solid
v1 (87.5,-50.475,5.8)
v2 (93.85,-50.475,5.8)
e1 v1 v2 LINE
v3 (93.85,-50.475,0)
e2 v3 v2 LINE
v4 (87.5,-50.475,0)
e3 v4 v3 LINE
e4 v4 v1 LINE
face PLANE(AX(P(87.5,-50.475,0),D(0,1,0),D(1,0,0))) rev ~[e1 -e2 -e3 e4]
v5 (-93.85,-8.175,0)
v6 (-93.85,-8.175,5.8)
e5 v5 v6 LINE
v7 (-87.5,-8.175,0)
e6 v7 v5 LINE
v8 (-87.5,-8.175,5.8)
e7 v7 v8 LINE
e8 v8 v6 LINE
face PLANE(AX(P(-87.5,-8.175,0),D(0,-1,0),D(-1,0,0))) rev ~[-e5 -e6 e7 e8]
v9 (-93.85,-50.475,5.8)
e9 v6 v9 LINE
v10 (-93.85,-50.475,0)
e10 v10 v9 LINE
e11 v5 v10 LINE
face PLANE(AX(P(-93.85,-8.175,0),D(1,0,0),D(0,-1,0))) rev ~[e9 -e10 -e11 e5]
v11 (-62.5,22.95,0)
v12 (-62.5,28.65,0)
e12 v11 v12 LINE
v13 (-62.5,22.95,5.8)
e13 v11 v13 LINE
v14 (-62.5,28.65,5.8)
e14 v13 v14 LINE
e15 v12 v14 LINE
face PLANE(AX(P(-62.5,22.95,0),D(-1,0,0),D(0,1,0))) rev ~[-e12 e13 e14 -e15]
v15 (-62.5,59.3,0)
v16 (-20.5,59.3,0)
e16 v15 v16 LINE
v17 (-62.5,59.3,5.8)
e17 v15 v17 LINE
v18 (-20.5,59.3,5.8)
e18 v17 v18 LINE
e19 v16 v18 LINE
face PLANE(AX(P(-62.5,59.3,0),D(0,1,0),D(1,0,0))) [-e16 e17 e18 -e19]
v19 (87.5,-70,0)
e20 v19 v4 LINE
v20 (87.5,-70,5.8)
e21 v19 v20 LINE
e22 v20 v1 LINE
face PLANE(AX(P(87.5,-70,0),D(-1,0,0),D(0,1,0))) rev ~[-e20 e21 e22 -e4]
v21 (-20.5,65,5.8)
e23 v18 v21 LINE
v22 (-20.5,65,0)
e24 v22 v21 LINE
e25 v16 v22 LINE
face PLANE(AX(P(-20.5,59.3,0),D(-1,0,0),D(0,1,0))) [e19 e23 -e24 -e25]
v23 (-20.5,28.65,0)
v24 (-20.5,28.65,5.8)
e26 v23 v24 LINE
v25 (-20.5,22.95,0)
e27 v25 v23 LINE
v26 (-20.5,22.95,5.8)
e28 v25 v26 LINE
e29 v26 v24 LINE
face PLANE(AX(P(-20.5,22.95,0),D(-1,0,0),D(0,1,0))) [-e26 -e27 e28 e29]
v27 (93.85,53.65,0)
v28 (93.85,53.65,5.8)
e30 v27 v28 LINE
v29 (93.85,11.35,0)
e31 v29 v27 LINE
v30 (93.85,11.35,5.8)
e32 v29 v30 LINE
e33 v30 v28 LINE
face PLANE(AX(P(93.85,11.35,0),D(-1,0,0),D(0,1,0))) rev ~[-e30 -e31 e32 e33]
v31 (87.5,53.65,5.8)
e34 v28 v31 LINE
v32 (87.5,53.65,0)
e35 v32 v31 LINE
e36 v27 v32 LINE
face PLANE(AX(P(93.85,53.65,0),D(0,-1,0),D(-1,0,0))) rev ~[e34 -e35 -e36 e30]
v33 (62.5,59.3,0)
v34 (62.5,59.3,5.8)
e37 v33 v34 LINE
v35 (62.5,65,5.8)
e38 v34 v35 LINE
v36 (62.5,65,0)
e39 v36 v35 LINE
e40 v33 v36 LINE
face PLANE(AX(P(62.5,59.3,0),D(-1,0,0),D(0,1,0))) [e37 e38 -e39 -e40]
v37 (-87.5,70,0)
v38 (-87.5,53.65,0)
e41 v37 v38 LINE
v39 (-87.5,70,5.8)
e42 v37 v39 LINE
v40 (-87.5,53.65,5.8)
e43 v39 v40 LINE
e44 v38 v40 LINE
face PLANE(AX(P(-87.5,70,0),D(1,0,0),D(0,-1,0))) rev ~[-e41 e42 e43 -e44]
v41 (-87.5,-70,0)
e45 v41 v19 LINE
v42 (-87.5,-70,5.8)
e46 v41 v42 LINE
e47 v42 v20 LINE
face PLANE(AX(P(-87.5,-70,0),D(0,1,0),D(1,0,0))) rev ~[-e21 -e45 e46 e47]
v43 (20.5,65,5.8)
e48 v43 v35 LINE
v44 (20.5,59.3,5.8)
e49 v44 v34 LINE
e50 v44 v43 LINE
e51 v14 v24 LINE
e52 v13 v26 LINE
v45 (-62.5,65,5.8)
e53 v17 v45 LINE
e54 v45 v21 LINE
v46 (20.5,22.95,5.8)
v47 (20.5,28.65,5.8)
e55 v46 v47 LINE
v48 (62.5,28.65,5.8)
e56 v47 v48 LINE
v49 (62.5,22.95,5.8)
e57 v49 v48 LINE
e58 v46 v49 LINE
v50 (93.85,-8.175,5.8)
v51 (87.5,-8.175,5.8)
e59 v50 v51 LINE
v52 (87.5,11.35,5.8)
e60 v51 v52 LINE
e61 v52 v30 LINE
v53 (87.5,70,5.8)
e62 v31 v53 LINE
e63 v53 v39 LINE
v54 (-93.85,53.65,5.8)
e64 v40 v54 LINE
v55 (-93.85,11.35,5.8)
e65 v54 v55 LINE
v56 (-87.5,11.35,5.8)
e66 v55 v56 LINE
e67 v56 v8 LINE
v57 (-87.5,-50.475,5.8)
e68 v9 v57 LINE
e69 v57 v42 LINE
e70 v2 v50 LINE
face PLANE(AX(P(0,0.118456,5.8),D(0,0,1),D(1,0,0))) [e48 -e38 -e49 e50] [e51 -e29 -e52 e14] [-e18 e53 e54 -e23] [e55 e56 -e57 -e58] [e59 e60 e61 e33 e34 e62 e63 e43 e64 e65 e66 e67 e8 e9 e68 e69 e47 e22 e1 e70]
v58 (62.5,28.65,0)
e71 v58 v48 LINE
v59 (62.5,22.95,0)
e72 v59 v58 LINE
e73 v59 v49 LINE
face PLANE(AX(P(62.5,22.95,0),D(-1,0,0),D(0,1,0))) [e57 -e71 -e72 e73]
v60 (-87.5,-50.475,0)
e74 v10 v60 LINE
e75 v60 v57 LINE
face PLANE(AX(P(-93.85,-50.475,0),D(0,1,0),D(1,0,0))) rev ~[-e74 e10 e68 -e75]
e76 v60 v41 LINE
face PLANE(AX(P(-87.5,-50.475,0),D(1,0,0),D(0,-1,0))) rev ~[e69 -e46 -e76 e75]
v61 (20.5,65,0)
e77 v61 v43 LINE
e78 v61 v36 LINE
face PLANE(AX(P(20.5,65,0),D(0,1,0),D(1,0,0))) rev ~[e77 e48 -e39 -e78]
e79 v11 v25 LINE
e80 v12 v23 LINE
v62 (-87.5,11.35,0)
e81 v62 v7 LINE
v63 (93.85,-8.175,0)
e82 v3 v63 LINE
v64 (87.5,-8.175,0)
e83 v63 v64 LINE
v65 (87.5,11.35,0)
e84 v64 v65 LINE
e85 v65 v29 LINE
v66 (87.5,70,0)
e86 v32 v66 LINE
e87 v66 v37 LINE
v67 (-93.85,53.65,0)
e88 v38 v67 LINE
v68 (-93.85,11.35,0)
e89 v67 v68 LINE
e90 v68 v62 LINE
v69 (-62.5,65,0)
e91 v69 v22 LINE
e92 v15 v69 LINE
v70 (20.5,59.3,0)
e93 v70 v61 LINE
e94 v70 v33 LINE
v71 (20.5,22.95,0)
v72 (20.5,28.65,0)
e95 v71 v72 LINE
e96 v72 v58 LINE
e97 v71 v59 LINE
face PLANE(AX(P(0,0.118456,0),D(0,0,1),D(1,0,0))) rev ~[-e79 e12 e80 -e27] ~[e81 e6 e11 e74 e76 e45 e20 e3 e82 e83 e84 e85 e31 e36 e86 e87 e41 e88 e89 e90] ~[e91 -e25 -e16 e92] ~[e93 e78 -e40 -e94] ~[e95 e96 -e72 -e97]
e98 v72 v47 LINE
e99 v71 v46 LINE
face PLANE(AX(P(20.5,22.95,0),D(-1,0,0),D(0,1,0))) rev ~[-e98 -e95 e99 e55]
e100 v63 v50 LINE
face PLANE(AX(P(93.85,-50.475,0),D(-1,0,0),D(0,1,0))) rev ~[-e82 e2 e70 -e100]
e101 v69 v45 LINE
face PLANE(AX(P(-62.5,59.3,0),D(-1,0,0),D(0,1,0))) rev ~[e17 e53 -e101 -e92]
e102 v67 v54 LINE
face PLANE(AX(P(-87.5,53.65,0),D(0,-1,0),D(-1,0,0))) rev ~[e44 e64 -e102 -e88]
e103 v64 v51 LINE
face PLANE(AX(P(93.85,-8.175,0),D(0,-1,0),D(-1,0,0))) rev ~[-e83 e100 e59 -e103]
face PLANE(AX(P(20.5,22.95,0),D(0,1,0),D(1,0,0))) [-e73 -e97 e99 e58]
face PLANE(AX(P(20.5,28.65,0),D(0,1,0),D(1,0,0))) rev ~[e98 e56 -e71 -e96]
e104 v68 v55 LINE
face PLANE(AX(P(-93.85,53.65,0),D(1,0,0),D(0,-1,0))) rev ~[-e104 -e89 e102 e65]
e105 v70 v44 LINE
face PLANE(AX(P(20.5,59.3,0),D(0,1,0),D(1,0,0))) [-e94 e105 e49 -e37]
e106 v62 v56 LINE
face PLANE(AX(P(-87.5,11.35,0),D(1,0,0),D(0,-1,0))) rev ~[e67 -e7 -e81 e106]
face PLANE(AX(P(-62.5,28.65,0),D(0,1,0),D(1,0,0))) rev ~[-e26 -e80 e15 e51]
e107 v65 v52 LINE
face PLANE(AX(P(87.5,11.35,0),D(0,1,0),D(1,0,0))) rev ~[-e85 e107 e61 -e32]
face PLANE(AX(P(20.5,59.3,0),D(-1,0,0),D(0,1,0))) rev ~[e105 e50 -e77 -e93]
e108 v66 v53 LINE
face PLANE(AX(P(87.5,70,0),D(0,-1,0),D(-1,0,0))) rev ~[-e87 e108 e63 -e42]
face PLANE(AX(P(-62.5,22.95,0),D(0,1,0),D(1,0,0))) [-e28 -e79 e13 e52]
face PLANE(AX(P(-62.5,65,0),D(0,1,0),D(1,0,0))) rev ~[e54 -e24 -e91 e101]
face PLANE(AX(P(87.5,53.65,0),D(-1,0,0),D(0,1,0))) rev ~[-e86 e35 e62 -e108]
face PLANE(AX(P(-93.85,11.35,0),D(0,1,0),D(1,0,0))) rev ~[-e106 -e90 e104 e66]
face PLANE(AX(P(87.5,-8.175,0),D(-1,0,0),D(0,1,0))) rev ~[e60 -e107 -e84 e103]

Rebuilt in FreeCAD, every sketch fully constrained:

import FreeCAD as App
import Part
import Sketcher
Q = App.Units.Quantity

doc = App.newDocument("Part")
params = doc.addObject("Spreadsheet::Sheet", "Params")
for row, (alias, value) in enumerate([
    ("sketch1_width", "175 mm"),
    ("sketch1_width2", "42 mm"),
    ("sketch1_height", "42.3 mm"),
    ("sketch1_height2", "5.7 mm"),
    ("sketch1_width3", "6.35 mm"),
    ("pad1_length", "5.8 mm"),
], start=1):
    params.set(f"A{row}", alias)
    params.set(f"B{row}", "=" + value)
    params.setAlias(f"B{row}", alias)

body = doc.addObject("PartDesign::Body", "Body")

sketch1 = body.newObject("Sketcher::SketchObject", "Sketch")
sketch1.AttachmentSupport = (doc.getObject("XY_Plane"), [""])
sketch1.MapMode = "FlatFace"
sketch1.addGeometry([
    Part.LineSegment(App.Vector(88, 54, 0), App.Vector(88, 70, 0)),
    Part.LineSegment(App.Vector(88, 70, 0), App.Vector(-88, 70, 0)),
    Part.LineSegment(App.Vector(-88, 70, 0), App.Vector(-88, 54, 0)),
    Part.LineSegment(App.Vector(-88, 54, 0), App.Vector(-94, 54, 0)),
    Part.LineSegment(App.Vector(-94, 54, 0), App.Vector(-94, 11, 0)),
    Part.LineSegment(App.Vector(-94, 11, 0), App.Vector(-88, 11, 0)),
    Part.LineSegment(App.Vector(-88, 11, 0), App.Vector(-88, -8, 0)),
    Part.LineSegment(App.Vector(-88, -8, 0), App.Vector(-94, -8, 0)),
    Part.LineSegment(App.Vector(-94, -8, 0), App.Vector(-94, -50, 0)),
    Part.LineSegment(App.Vector(-94, -50, 0), App.Vector(-88, -50, 0)),
    Part.LineSegment(App.Vector(-88, -50, 0), App.Vector(-88, -70, 0)),
    Part.LineSegment(App.Vector(-88, -70, 0), App.Vector(88, -70, 0)),
    Part.LineSegment(App.Vector(88, -70, 0), App.Vector(88, -50, 0)),
    Part.LineSegment(App.Vector(88, -50, 0), App.Vector(94, -50, 0)),
    Part.LineSegment(App.Vector(94, -50, 0), App.Vector(94, -8, 0)),
    Part.LineSegment(App.Vector(94, -8, 0), App.Vector(88, -8, 0)),
    Part.LineSegment(App.Vector(88, -8, 0), App.Vector(88, 11, 0)),
    Part.LineSegment(App.Vector(88, 11, 0), App.Vector(94, 11, 0)),
    Part.LineSegment(App.Vector(94, 11, 0), App.Vector(94, 54, 0)),
    Part.LineSegment(App.Vector(94, 54, 0), App.Vector(88, 54, 0)),
    Part.LineSegment(App.Vector(-20, 23, 0), App.Vector(-62, 23, 0)),
    Part.LineSegment(App.Vector(-62, 23, 0), App.Vector(-62, 29, 0)),
    Part.LineSegment(App.Vector(-62, 29, 0), App.Vector(-20, 29, 0)),
    Part.LineSegment(App.Vector(-20, 29, 0), App.Vector(-20, 23, 0)),
    Part.LineSegment(App.Vector(62, 23, 0), App.Vector(20, 23, 0)),
    Part.LineSegment(App.Vector(20, 23, 0), App.Vector(20, 29, 0)),
    Part.LineSegment(App.Vector(20, 29, 0), App.Vector(62, 29, 0)),
    Part.LineSegment(App.Vector(62, 29, 0), App.Vector(62, 23, 0)),
    Part.LineSegment(App.Vector(-20, 59, 0), App.Vector(-62, 59, 0)),
    Part.LineSegment(App.Vector(-62, 59, 0), App.Vector(-62, 65, 0)),
    Part.LineSegment(App.Vector(-62, 65, 0), App.Vector(-20, 65, 0)),
    Part.LineSegment(App.Vector(-20, 65, 0), App.Vector(-20, 59, 0)),
    Part.LineSegment(App.Vector(62, 59, 0), App.Vector(20, 59, 0)),
    Part.LineSegment(App.Vector(20, 59, 0), App.Vector(20, 65, 0)),
    Part.LineSegment(App.Vector(20, 65, 0), App.Vector(62, 65, 0)),
    Part.LineSegment(App.Vector(62, 65, 0), App.Vector(62, 59, 0)),
], False)
sketch1.addConstraint([
    Sketcher.Constraint("Coincident", 0, 2, 1, 1),
    Sketcher.Constraint("Coincident", 1, 2, 2, 1),
    Sketcher.Constraint("Coincident", 2, 2, 3, 1),
    Sketcher.Constraint("Coincident", 3, 2, 4, 1),
    Sketcher.Constraint("Coincident", 4, 2, 5, 1),
    Sketcher.Constraint("Coincident", 5, 2, 6, 1),
    Sketcher.Constraint("Coincident", 6, 2, 7, 1),
    Sketcher.Constraint("Coincident", 7, 2, 8, 1),
    Sketcher.Constraint("Coincident", 8, 2, 9, 1),
    Sketcher.Constraint("Coincident", 9, 2, 10, 1),
    Sketcher.Constraint("Coincident", 10, 2, 11, 1),
    Sketcher.Constraint("Coincident", 11, 2, 12, 1),
    Sketcher.Constraint("Coincident", 12, 2, 13, 1),
    Sketcher.Constraint("Coincident", 13, 2, 14, 1),
    Sketcher.Constraint("Coincident", 14, 2, 15, 1),
    Sketcher.Constraint("Coincident", 15, 2, 16, 1),
    Sketcher.Constraint("Coincident", 16, 2, 17, 1),
    Sketcher.Constraint("Coincident", 17, 2, 18, 1),
    Sketcher.Constraint("Coincident", 18, 2, 19, 1),
    Sketcher.Constraint("Coincident", 19, 2, 0, 1),
    Sketcher.Constraint("Coincident", 20, 2, 21, 1),
    Sketcher.Constraint("Coincident", 21, 2, 22, 1),
    Sketcher.Constraint("Coincident", 22, 2, 23, 1),
    Sketcher.Constraint("Coincident", 23, 2, 20, 1),
    Sketcher.Constraint("Coincident", 24, 2, 25, 1),
    Sketcher.Constraint("Coincident", 25, 2, 26, 1),
    Sketcher.Constraint("Coincident", 26, 2, 27, 1),
    Sketcher.Constraint("Coincident", 27, 2, 24, 1),
    Sketcher.Constraint("Coincident", 28, 2, 29, 1),
    Sketcher.Constraint("Coincident", 29, 2, 30, 1),
    Sketcher.Constraint("Coincident", 30, 2, 31, 1),
    Sketcher.Constraint("Coincident", 31, 2, 28, 1),
    Sketcher.Constraint("Coincident", 32, 2, 33, 1),
    Sketcher.Constraint("Coincident", 33, 2, 34, 1),
    Sketcher.Constraint("Coincident", 34, 2, 35, 1),
    Sketcher.Constraint("Coincident", 35, 2, 32, 1),
    Sketcher.Constraint("Vertical", 0),
    Sketcher.Constraint("Horizontal", 1),
    Sketcher.Constraint("Vertical", 2),
    Sketcher.Constraint("Horizontal", 3),
    Sketcher.Constraint("Vertical", 4),
    Sketcher.Constraint("Horizontal", 5),
    Sketcher.Constraint("Vertical", 6),
    Sketcher.Constraint("Horizontal", 7),
    Sketcher.Constraint("Vertical", 8),
    Sketcher.Constraint("Horizontal", 9),
    Sketcher.Constraint("Vertical", 10),
    Sketcher.Constraint("Horizontal", 11),
    Sketcher.Constraint("Vertical", 12),
    Sketcher.Constraint("Horizontal", 13),
    Sketcher.Constraint("Vertical", 14),
    Sketcher.Constraint("Horizontal", 15),
    Sketcher.Constraint("Vertical", 16),
    Sketcher.Constraint("Horizontal", 17),
    Sketcher.Constraint("Vertical", 18),
    Sketcher.Constraint("Horizontal", 19),
    Sketcher.Constraint("Horizontal", 20),
    Sketcher.Constraint("Vertical", 21),
    Sketcher.Constraint("Horizontal", 22),
    Sketcher.Constraint("Vertical", 23),
    Sketcher.Constraint("Horizontal", 24),
    Sketcher.Constraint("Vertical", 25),
    Sketcher.Constraint("Horizontal", 26),
    Sketcher.Constraint("Vertical", 27),
    Sketcher.Constraint("Horizontal", 28),
    Sketcher.Constraint("Vertical", 29),
    Sketcher.Constraint("Horizontal", 30),
    Sketcher.Constraint("Vertical", 31),
    Sketcher.Constraint("Horizontal", 32),
    Sketcher.Constraint("Vertical", 33),
    Sketcher.Constraint("Horizontal", 34),
    Sketcher.Constraint("Vertical", 35),
    Sketcher.Constraint("Symmetric", 0, 2, 10, 2, -1, 1),
    Sketcher.Constraint("Symmetric", 9, 2, 12, 2, -2),
    Sketcher.Constraint("Symmetric", 7, 2, 14, 2, -2),
    Sketcher.Constraint("Symmetric", 5, 2, 16, 2, -2),
    Sketcher.Constraint("Symmetric", 3, 2, 18, 2, -2),
    Sketcher.Constraint("Symmetric", 23, 2, 24, 2, -2),
    Sketcher.Constraint("Symmetric", 21, 2, 26, 2, -2),
    Sketcher.Constraint("Symmetric", 31, 2, 32, 2, -2),
    Sketcher.Constraint("Symmetric", 29, 2, 34, 2, -2),
    Sketcher.Constraint("Vertical", 2, 2, 5, 2),
    Sketcher.Constraint("Vertical", 4, 2, 7, 2),
    Sketcher.Constraint("Vertical", 6, 2, 9, 2),
    Sketcher.Constraint("Vertical", 21, 2, 28, 2),
    Sketcher.Constraint("Vertical", 23, 2, 30, 2),
    Sketcher.Constraint("Equal", 4, 8),
    Sketcher.Constraint("Equal", 6, 10),
    Sketcher.Constraint("Equal", 27, 29),
    Sketcher.Constraint("DistanceX", 1, 2, 1, 1, Q("175 mm")),
    Sketcher.Constraint("DistanceX", 20, 2, 20, 1, Q("42 mm")),
    Sketcher.Constraint("DistanceY", 4, 2, 4, 1, Q("42.3 mm")),
    Sketcher.Constraint("DistanceY", 21, 1, 21, 2, Q("5.7 mm")),
    Sketcher.Constraint("DistanceY", -1, 1, 0, 2, Q("70 mm")),
    Sketcher.Constraint("DistanceY", -1, 1, 29, 2, Q("65 mm")),
    Sketcher.Constraint("DistanceX", 5, 2, 20, 2, Q("25 mm")),
    Sketcher.Constraint("DistanceY", 21, 2, 2, 2, Q("25 mm")),
    Sketcher.Constraint("DistanceX", 3, 2, 3, 1, Q("6.35 mm")),
    Sketcher.Constraint("DistanceY", 0, 1, 0, 2, Q("16.35 mm")),
])
sketch1.setExpression("Constraints[89]", "Params.sketch1_width")
sketch1.setExpression("Constraints[90]", "Params.sketch1_width2")
sketch1.setExpression("Constraints[91]", "Params.sketch1_height")
sketch1.setExpression("Constraints[92]", "Params.sketch1_height2")
sketch1.setExpression("Constraints[97]", "Params.sketch1_width3")
pad1 = body.newObject("PartDesign::Pad", "Pad")
pad1.Profile = sketch1
pad1.setExpression("Length", "Params.pad1_length")

doc.recompute()
